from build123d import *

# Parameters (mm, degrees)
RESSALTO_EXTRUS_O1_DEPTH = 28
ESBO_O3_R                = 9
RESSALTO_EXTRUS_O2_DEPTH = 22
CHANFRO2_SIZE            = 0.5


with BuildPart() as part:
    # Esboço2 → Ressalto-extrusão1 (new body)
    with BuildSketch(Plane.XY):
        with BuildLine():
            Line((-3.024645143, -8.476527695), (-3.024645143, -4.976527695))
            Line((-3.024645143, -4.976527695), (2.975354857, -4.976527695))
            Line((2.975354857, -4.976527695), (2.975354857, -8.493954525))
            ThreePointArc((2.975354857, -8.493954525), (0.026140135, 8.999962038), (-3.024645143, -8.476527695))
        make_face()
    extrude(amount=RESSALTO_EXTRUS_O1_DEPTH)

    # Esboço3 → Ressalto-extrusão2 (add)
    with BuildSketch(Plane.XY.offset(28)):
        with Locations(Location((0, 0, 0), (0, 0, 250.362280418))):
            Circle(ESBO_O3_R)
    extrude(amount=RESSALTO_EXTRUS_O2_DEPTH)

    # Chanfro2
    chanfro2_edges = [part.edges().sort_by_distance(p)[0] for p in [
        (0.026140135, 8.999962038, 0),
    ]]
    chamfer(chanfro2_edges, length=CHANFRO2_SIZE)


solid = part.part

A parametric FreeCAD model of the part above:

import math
import FreeCAD as App
import Part
import Sketcher
from FreeCAD import Vector
Q = App.Units.Quantity


def edges_at(feature, points):
    """Names of the edges that pass closest to the given points."""
    edges = feature.Shape.Edges
    near = lambda p: min(range(len(edges)), key=lambda i: edges[i].distToShape(Part.Vertex(*p))[0])
    return sorted({f"Edge{near(p) + 1}" for p in points})

doc = App.newDocument("Part")
body = doc.addObject("PartDesign::Body", "Body")

sketch1 = doc.addObject("Sketcher::SketchObject", "Sketch")
body.addObject(sketch1)
sketch1.AttachmentSupport = (doc.XY_Plane, [""])
sketch1.MapMode = "FlatFace"
sketch1.addGeometry([
    Part.LineSegment(Vector(-3, -8.5, 0), Vector(-3, -5, 0)),
    Part.LineSegment(Vector(-3, -5, 0), Vector(3, -5, 0)),
    Part.LineSegment(Vector(3, -5, 0), Vector(3, -8.5, 0)),
    Part.ArcOfCircle(Part.Circle(Vector(0, 0, 0), Vector(0, 0, 1), 9), math.radians(-71), math.radians(250)),
], False)
sketch1.addConstraint([
    Sketcher.Constraint("Coincident", 0, 2, 1, 1),
    Sketcher.Constraint("Coincident", 1, 2, 2, 1),
    Sketcher.Constraint("Coincident", 2, 2, 3, 1),
    Sketcher.Constraint("Coincident", 3, 2, 0, 1),
    Sketcher.Constraint("Vertical", 0),
    Sketcher.Constraint("Horizontal", 1),
    Sketcher.Constraint("Vertical", 2),
    Sketcher.Constraint("Coincident", 3, 3, -1, 1),
    Sketcher.Constraint("Radius", 3, Q("9 mm")),
    Sketcher.Constraint("DistanceX", 1, 1, 1, 2, Q("6 mm")),
    Sketcher.Constraint("DistanceY", 0, 1, 0, 2, Q("3.5 mm")),
    Sketcher.Constraint("DistanceY", 2, 2, 2, 1, Q("3.517427 mm")),
])
pad1 = doc.addObject("PartDesign::Pad", "Pad")
body.addObject(pad1)
pad1.Profile = sketch1
pad1.Length = 28

sketch2 = doc.addObject("Sketcher::SketchObject", "Sketch001")
body.addObject(sketch2)
sketch2.AttachmentSupport = (doc.XY_Plane, [""])
sketch2.MapMode = "FlatFace"
sketch2.AttachmentOffset = App.Placement(Vector(0, 0, 28), App.Rotation())
sketch2.addGeometry(Part.Circle(Vector(0, 0, 0), Vector(0, 0, 1), 9), False)
sketch2.addConstraint([
    Sketcher.Constraint("Coincident", 0, 3, -1, 1),
    Sketcher.Constraint("Diameter", 0, Q("18 mm")),
])
pad2 = doc.addObject("PartDesign::Pad", "Pad001")
body.addObject(pad2)
pad2.Profile = sketch2
pad2.Length = 22
doc.recompute()

chamfer = doc.addObject("PartDesign::Chamfer", "Chamfer")
body.addObject(chamfer)
chamfer.Base = (pad2, edges_at(pad2, [(0.026, 9, 0)]))
chamfer.Size = 0.5

doc.recompute()
